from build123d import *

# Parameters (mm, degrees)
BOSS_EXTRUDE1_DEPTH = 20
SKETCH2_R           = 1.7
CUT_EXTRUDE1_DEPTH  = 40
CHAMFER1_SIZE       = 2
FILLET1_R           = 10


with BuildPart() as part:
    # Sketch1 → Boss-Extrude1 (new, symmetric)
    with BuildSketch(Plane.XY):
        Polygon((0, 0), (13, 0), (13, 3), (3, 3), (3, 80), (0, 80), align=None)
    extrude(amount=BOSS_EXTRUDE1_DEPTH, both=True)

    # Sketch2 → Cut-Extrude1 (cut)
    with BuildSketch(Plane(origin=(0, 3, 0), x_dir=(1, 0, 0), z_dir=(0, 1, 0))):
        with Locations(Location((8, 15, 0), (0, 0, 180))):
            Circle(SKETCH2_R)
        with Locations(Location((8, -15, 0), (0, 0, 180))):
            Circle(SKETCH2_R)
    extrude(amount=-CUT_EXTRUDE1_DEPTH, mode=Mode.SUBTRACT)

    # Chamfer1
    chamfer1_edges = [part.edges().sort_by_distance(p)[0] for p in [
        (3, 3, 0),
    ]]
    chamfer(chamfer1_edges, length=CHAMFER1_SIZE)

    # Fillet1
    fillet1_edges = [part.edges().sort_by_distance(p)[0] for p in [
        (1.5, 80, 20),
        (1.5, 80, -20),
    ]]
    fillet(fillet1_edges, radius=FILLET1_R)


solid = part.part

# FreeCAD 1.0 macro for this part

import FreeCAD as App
import Part
import Sketcher


def edges_at(feature, points):
    """Names of the edges that pass closest to the given points."""
    edges = feature.Shape.Edges
    near = lambda p: min(range(len(edges)), key=lambda i: edges[i].distToShape(Part.Vertex(*p))[0])
    return sorted({f"Edge{near(p) + 1}" for p in points})

doc = App.newDocument("Part")
body = doc.addObject("PartDesign::Body", "Body")

# Sketch on XY plane
sketch1 = body.newObject("Sketcher::SketchObject", "Sketch")
sketch1.AttachmentSupport = (doc.getObject("XY_Plane"), [""])
sketch1.MapMode = "FlatFace"
sketch1.addGeometry([
    Part.LineSegment(App.Vector(0, 0, 0), App.Vector(13, 0, 0)),  # 0
    Part.LineSegment(App.Vector(13, 0, 0), App.Vector(13, 3, 0)),  # 1
    Part.LineSegment(App.Vector(13, 3, 0), App.Vector(3, 3, 0)),  # 2
    Part.LineSegment(App.Vector(3, 3, 0), App.Vector(3, 80, 0)),  # 3
    Part.LineSegment(App.Vector(3, 80, 0), App.Vector(0, 80, 0)),  # 4
    Part.LineSegment(App.Vector(0, 80, 0), App.Vector(0, 0, 0)),  # 5
], False)
sketch1.addConstraint([
    Sketcher.Constraint("Coincident", 0, 2, 1, 1),
    Sketcher.Constraint("Coincident", 1, 2, 2, 1),
    Sketcher.Constraint("Coincident", 2, 2, 3, 1),
    Sketcher.Constraint("Coincident", 3, 2, 4, 1),
    Sketcher.Constraint("Coincident", 4, 2, 5, 1),
    Sketcher.Constraint("Coincident", 5, 2, 0, 1),
    Sketcher.Constraint("Horizontal", 0),
    Sketcher.Constraint("Vertical", 1),
    Sketcher.Constraint("Horizontal", 2),
    Sketcher.Constraint("Vertical", 3),
    Sketcher.Constraint("Horizontal", 4),
    Sketcher.Constraint("Vertical", 5),
    Sketcher.Constraint("Coincident", 5, 2, -1, 1),
    Sketcher.Constraint("Equal", 4, 1),
    Sketcher.Constraint("DistanceX", 0, 1, 0, 2, 13.0),
    Sketcher.Constraint("DistanceX", 2, 2, 2, 1, 10.0),
    Sketcher.Constraint("DistanceY", 3, 1, 3, 2, 77.0),
])
pad1 = body.newObject("PartDesign::Pad", "Pad")
pad1.Profile = sketch1
pad1.Length = 40
pad1.Midplane = True

# Sketch on XZ plane
sketch2 = body.newObject("Sketcher::SketchObject", "Sketch001")
sketch2.AttachmentSupport = (doc.getObject("XZ_Plane"), [""])
sketch2.MapMode = "FlatFace"
sketch2.AttachmentOffset = App.Placement(App.Vector(0, 0, -3), App.Rotation())
sketch2.addGeometry([
    Part.Circle(App.Vector(8, -15, 0), App.Vector(0, 0, 1), 1.7),
    Part.Circle(App.Vector(8, 15, 0), App.Vector(0, 0, 1), 1.7),
], False)
sketch2.addConstraint([
    Sketcher.Constraint("Equal", 0, 1),
    Sketcher.Constraint("Symmetric", 0, 3, 1, 3, -1),
    Sketcher.Constraint("Diameter", 0, 3.4),
    Sketcher.Constraint("DistanceX", -1, 1, 0, 3, 8.0),
    Sketcher.Constraint("DistanceY", 0, 3, -1, 1, 15.0),
])
pocket1 = body.newObject("PartDesign::Pocket", "Pocket")
pocket1.Profile = sketch2
pocket1.Length = 40
pocket1.Reversed = True
doc.recompute()

chamfer = body.newObject("PartDesign::Chamfer", "Chamfer")
chamfer.Base = (pocket1, edges_at(pocket1, [(3, 3, 0)]))
chamfer.Size = 2
doc.recompute()

fillet = body.newObject("PartDesign::Fillet", "Fillet")
fillet.Base = (chamfer, edges_at(chamfer, [(1.5, 80, 20), (1.5, 80, -20)]))
fillet.Radius = 10

doc.recompute()
